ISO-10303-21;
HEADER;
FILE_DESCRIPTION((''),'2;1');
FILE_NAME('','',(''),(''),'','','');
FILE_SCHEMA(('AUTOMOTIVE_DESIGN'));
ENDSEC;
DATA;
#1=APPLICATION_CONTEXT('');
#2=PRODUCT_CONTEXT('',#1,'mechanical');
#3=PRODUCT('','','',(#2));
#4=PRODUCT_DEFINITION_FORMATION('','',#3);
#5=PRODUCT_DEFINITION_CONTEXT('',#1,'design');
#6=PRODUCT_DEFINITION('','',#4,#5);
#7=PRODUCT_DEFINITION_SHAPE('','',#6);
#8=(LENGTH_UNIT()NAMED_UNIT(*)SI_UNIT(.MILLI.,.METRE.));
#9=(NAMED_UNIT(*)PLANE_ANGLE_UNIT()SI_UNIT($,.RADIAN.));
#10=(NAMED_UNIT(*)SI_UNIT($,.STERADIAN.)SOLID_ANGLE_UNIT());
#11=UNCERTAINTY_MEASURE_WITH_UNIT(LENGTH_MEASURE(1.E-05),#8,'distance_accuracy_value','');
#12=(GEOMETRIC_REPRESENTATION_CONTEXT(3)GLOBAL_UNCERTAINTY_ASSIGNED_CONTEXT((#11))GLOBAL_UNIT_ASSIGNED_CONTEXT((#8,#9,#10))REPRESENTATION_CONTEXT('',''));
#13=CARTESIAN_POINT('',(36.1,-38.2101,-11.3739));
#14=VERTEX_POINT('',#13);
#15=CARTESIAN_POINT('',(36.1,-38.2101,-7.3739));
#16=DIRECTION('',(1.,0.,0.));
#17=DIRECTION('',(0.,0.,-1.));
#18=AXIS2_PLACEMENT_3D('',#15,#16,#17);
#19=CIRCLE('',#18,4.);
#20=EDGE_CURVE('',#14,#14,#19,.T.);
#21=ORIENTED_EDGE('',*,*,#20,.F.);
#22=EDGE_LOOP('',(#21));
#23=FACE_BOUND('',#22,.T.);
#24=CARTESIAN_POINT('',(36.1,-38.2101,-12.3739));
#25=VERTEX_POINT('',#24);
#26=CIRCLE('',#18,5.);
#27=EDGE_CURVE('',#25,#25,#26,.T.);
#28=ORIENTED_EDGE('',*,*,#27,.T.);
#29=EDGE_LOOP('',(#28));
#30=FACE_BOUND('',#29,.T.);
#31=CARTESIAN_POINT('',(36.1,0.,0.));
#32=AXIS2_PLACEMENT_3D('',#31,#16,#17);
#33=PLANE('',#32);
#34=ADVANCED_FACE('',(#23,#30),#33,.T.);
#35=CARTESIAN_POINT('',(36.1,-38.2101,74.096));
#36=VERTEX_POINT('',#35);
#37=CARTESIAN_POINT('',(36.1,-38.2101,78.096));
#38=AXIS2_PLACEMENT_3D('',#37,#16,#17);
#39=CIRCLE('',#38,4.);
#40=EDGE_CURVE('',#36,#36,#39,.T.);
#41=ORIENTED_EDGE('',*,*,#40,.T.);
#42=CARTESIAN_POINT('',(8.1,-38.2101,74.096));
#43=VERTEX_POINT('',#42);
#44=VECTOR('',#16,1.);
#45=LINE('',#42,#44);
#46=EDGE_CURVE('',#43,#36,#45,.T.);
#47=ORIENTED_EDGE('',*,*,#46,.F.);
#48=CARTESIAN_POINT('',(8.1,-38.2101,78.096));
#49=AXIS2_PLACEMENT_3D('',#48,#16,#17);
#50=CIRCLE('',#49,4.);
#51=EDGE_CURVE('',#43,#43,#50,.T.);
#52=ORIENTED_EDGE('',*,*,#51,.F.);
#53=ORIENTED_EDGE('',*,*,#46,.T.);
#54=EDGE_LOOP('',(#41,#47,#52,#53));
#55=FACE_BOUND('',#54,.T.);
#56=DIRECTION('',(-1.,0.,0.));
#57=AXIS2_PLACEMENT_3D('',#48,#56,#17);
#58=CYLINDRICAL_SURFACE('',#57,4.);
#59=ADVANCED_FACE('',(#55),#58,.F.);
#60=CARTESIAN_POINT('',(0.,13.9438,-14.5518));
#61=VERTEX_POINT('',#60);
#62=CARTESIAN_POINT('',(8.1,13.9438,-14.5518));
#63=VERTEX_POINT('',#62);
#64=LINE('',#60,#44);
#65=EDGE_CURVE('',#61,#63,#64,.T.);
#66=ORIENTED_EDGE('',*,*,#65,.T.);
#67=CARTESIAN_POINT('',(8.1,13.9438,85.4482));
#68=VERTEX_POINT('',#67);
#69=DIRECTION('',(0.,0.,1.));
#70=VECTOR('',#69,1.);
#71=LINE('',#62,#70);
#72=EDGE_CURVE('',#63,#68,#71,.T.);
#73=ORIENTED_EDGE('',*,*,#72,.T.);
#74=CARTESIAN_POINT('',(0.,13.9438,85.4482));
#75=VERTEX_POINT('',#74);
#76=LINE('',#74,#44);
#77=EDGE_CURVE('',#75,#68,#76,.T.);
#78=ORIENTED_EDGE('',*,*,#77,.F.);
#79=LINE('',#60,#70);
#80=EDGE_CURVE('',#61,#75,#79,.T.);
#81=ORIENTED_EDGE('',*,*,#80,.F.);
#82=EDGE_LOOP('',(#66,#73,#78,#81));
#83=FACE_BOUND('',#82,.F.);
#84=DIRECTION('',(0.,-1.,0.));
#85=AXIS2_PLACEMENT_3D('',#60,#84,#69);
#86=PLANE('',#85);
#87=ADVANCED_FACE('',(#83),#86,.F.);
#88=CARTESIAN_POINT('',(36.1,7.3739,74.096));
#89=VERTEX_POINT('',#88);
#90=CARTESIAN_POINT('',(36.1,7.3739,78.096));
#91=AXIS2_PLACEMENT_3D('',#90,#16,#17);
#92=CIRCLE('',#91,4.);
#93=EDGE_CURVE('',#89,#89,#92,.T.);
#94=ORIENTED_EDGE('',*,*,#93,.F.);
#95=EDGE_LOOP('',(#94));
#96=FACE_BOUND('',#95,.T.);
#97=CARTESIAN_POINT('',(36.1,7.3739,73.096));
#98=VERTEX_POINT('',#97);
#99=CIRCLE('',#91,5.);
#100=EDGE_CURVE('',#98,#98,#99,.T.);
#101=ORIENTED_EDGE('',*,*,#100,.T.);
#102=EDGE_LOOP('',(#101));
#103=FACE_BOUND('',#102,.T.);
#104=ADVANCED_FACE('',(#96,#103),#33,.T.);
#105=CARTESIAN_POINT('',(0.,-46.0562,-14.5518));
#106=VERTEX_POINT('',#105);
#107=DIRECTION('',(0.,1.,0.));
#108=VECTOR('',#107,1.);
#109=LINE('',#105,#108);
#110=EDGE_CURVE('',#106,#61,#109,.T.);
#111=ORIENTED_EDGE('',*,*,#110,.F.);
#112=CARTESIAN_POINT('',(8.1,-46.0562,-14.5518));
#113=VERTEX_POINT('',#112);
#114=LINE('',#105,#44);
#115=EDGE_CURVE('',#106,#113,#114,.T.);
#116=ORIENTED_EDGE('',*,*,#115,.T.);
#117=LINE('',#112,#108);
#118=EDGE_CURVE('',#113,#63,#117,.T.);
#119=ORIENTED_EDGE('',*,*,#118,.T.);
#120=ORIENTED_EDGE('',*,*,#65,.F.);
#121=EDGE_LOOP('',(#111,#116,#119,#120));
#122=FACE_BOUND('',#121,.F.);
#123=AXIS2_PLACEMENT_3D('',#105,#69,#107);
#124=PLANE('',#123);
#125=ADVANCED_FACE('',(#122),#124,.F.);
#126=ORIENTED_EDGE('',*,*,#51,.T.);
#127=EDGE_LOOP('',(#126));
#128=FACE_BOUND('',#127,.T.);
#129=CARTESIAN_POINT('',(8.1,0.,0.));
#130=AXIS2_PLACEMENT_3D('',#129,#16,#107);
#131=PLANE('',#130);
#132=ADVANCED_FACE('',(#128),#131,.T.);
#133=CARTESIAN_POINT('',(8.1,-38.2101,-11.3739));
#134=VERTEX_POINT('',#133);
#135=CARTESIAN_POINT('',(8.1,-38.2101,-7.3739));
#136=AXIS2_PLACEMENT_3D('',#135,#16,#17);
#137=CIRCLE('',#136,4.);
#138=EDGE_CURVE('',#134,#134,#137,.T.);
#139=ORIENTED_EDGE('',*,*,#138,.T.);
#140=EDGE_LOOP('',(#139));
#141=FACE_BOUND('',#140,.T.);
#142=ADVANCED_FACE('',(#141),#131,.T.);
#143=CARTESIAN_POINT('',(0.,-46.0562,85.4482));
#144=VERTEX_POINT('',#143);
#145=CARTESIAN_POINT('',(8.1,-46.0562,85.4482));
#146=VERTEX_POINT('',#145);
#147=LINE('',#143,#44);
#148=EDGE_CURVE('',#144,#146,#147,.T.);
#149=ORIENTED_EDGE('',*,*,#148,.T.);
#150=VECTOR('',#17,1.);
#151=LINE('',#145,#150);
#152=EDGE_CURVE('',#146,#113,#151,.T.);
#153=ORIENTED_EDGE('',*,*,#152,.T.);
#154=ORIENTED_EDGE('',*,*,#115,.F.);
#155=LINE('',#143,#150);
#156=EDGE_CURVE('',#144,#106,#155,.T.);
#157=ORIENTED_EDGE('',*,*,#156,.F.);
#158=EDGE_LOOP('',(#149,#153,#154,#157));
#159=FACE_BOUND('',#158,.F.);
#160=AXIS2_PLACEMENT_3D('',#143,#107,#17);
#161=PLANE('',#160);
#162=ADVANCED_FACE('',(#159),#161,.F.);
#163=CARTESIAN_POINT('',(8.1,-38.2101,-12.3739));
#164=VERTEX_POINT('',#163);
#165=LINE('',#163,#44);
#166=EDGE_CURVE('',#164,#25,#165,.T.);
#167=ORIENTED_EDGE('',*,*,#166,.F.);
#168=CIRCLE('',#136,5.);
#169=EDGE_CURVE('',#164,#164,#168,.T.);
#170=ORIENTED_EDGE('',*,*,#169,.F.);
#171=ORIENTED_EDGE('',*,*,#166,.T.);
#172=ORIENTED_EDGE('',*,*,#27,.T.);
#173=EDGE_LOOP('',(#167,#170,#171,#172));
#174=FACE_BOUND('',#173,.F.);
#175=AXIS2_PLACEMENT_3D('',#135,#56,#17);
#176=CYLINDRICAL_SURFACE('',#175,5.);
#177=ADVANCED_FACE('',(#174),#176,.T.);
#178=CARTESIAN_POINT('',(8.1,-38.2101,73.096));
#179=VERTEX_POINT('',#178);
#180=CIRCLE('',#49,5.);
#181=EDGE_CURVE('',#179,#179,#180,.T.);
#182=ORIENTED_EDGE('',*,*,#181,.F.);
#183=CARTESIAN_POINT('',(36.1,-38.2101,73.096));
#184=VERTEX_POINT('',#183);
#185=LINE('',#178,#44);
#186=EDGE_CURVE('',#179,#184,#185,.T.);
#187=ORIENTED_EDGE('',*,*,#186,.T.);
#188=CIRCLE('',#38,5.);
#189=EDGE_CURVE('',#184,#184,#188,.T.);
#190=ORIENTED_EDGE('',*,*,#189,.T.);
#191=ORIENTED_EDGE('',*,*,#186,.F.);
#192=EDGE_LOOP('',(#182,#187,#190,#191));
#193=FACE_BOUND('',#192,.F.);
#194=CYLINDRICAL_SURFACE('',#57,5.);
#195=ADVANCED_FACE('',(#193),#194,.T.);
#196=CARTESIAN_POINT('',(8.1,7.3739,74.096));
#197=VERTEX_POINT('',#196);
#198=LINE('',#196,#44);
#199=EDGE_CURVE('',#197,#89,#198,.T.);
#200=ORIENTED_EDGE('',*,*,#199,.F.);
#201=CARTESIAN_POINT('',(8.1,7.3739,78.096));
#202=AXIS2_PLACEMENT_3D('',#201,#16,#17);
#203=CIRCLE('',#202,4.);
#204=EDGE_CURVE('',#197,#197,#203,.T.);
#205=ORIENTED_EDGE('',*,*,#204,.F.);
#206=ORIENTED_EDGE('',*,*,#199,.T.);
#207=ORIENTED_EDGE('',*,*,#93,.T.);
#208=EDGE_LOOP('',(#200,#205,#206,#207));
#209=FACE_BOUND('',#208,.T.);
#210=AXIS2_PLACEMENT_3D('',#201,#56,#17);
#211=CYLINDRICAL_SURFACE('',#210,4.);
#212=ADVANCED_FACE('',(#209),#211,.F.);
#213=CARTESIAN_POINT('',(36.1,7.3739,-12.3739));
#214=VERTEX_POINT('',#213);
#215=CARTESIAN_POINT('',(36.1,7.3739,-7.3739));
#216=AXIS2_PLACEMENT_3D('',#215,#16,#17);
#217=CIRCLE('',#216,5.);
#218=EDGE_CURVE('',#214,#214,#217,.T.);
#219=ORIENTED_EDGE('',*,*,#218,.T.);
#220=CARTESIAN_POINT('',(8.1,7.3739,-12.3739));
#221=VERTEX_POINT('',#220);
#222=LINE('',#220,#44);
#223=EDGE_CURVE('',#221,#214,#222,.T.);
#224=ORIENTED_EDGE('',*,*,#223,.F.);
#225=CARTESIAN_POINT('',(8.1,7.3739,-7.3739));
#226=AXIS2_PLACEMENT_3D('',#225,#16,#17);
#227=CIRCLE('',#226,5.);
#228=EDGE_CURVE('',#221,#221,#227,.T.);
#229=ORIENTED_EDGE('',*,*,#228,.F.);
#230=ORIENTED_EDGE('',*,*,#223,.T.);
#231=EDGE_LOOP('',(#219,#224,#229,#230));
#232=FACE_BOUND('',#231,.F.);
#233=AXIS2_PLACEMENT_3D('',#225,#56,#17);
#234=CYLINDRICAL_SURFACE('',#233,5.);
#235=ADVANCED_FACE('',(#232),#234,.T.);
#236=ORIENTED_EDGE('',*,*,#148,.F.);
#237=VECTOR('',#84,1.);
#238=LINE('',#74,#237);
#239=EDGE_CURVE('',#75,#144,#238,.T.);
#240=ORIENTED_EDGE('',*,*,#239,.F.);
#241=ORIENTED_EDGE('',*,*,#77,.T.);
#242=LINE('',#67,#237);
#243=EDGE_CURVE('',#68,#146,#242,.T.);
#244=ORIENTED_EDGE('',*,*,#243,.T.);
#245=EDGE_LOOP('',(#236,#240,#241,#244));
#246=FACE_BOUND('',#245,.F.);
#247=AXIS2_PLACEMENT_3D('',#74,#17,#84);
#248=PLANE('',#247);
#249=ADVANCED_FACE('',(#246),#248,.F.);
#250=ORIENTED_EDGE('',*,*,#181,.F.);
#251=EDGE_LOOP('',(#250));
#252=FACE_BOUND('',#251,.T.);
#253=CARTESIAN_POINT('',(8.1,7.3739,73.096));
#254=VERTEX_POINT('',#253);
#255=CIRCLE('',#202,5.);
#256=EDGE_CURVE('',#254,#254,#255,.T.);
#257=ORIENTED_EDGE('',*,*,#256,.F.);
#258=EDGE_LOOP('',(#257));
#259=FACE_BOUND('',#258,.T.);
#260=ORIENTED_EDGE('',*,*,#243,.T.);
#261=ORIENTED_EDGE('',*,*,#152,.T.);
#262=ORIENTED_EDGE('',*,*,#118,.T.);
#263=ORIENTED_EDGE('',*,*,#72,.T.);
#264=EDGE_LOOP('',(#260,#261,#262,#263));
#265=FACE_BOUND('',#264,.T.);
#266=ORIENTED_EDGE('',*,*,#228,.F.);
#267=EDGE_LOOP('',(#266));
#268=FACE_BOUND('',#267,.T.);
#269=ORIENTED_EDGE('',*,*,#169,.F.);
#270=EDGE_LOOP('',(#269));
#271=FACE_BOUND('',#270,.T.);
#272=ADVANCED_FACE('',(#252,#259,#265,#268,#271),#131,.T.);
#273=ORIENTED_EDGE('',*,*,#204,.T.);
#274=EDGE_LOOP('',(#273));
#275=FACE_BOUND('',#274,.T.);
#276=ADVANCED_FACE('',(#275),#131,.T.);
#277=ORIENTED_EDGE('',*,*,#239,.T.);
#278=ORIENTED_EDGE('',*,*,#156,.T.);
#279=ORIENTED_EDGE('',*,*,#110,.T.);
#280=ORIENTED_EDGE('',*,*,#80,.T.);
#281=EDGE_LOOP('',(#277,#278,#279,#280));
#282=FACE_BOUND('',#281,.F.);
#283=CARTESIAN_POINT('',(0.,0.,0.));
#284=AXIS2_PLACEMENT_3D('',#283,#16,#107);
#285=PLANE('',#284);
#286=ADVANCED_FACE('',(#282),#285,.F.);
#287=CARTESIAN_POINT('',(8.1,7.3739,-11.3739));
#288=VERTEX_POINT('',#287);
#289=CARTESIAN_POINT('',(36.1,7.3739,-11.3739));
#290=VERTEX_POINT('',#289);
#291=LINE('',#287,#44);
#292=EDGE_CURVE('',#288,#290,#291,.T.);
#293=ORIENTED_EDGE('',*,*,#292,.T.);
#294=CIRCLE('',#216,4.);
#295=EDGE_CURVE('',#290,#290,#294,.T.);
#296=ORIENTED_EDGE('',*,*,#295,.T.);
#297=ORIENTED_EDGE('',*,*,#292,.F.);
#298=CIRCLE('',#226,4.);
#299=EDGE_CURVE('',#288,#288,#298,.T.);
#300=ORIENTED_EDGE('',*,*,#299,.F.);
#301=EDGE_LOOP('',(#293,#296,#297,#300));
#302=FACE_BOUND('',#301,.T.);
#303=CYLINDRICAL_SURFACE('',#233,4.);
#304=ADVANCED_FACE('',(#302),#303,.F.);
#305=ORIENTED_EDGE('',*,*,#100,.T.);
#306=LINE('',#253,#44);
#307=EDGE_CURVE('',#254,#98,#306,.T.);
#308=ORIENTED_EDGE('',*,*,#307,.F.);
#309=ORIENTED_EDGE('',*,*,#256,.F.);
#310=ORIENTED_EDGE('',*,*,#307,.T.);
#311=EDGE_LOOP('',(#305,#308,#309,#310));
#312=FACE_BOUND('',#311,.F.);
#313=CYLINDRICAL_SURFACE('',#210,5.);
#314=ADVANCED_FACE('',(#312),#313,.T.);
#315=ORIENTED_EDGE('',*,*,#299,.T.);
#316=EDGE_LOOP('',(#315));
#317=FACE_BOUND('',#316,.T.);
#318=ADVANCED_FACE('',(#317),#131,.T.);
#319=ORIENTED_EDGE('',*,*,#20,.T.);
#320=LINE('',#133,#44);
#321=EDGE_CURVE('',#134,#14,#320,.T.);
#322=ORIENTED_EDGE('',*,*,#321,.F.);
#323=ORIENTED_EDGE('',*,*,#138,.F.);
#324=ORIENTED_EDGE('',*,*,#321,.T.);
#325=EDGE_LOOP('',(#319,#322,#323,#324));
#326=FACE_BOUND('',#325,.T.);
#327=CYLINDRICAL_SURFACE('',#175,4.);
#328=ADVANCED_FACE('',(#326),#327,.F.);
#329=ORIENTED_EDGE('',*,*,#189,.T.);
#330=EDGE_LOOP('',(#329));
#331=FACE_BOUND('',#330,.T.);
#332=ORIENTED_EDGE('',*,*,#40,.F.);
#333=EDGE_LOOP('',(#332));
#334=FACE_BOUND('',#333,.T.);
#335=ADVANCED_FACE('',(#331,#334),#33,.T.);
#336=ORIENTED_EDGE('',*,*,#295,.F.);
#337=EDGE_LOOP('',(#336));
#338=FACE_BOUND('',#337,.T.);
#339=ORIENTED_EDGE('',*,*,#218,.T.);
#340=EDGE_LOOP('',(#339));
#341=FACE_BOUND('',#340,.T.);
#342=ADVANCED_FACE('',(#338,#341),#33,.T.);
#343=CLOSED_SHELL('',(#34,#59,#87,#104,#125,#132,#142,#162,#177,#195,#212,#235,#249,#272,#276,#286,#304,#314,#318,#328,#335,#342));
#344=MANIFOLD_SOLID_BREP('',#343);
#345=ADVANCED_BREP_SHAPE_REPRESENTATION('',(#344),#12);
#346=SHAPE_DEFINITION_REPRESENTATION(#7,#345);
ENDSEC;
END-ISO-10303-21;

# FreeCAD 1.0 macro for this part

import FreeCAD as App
import Part
import Sketcher


def add_polygon(sketch, points):
    """Adds a closed chain of lines whose ends are joined by coincident constraints."""
    first, n = sketch.GeometryCount, len(points)
    for a, b in zip(points, points[1:] + points[:1]):
        sketch.addGeometry(Part.LineSegment(App.Vector(*a, 0), App.Vector(*b, 0)), False)
    for i in range(n):
        sketch.addConstraint(Sketcher.Constraint("Coincident", first + i, 2, first + (i + 1) % n, 1))

doc = App.newDocument("Part")
body = doc.addObject("PartDesign::Body", "Body")

# Sketch on YZ plane
sketch1 = body.newObject("Sketcher::SketchObject", "Sketch")
sketch1.AttachmentSupport = (doc.getObject("YZ_Plane"), [""])
sketch1.MapMode = "FlatFace"
add_polygon(sketch1, [(14, -15), (14, 85), (-46, 85), (-46, -15)])  # lines 0-3
sketch1.addConstraint([
    Sketcher.Constraint("Vertical", 0),
    Sketcher.Constraint("Horizontal", 1),
    Sketcher.Constraint("Vertical", 2),
    Sketcher.Constraint("Horizontal", 3),
    Sketcher.Constraint("DistanceX", 1, 2, 1, 1, 60.0),
    Sketcher.Constraint("DistanceY", 0, 1, 0, 2, 100.0),
    Sketcher.Constraint("DistanceX", -1, 1, 0, 2, 13.9438),
    Sketcher.Constraint("DistanceY", -1, 1, 0, 2, 85.4482),
])
pad1 = body.newObject("PartDesign::Pad", "Pad")
pad1.Profile = sketch1
pad1.Length = 8.1

# Sketch on YZ plane
sketch2 = body.newObject("Sketcher::SketchObject", "Sketch001")
sketch2.AttachmentSupport = (doc.getObject("YZ_Plane"), [""])
sketch2.MapMode = "FlatFace"
sketch2.AttachmentOffset = App.Placement(App.Vector(0, 0, 8.1), App.Rotation())
sketch2.addGeometry([
    Part.Circle(App.Vector(7.4, 78.1, 0), App.Vector(0, 0, 1), 5),  # 0
    Part.Circle(App.Vector(7.4, 78.1, 0), App.Vector(0, 0, 1), 4),  # 1
    Part.Circle(App.Vector(-38.2, 78.1, 0), App.Vector(0, 0, 1), 5),  # 2
    Part.Circle(App.Vector(-38.2, 78.1, 0), App.Vector(0, 0, 1), 4),  # 3
    Part.Circle(App.Vector(-38.2, -7.4, 0), App.Vector(0, 0, 1), 5),  # 4
    Part.Circle(App.Vector(-38.2, -7.4, 0), App.Vector(0, 0, 1), 4),  # 5
    Part.Circle(App.Vector(7.4, -7.4, 0), App.Vector(0, 0, 1), 5),  # 6
    Part.Circle(App.Vector(7.4, -7.4, 0), App.Vector(0, 0, 1), 4),  # 7
], False)
sketch2.addConstraint([
    Sketcher.Constraint("Coincident", 1, 3, 0, 3),
    Sketcher.Constraint("Coincident", 3, 3, 2, 3),
    Sketcher.Constraint("Coincident", 5, 3, 4, 3),
    Sketcher.Constraint("Coincident", 7, 3, 6, 3),
    Sketcher.Constraint("Equal", 0, 2),
    Sketcher.Constraint("Equal", 1, 3),
    Sketcher.Constraint("Equal", 2, 4),
    Sketcher.Constraint("Equal", 3, 5),
    Sketcher.Constraint("Equal", 4, 6),
    Sketcher.Constraint("Equal", 5, 7),
    Sketcher.Constraint("Horizontal", 1, 3, 2, 3),
    Sketcher.Constraint("Horizontal", 5, 3, 6, 3),
    Sketcher.Constraint("Vertical", 3, 3, 4, 3),
    Sketcher.Constraint("Vertical", 1, 3, 6, 3),
    Sketcher.Constraint("Diameter", 0, 10.0),
    Sketcher.Constraint("Diameter", 1, 8.0),
    Sketcher.Constraint("DistanceX", 2, 3, -1, 1, 38.21),
    Sketcher.Constraint("DistanceY", 4, 3, 2, 3, 85.47),
    Sketcher.Constraint("DistanceX", -1, 1, 0, 3, 7.374),
    Sketcher.Constraint("DistanceY", -1, 1, 0, 3, 78.096),
])
pad2 = body.newObject("PartDesign::Pad", "Pad001")
pad2.Profile = sketch2
pad2.Length = 28

doc.recompute()
